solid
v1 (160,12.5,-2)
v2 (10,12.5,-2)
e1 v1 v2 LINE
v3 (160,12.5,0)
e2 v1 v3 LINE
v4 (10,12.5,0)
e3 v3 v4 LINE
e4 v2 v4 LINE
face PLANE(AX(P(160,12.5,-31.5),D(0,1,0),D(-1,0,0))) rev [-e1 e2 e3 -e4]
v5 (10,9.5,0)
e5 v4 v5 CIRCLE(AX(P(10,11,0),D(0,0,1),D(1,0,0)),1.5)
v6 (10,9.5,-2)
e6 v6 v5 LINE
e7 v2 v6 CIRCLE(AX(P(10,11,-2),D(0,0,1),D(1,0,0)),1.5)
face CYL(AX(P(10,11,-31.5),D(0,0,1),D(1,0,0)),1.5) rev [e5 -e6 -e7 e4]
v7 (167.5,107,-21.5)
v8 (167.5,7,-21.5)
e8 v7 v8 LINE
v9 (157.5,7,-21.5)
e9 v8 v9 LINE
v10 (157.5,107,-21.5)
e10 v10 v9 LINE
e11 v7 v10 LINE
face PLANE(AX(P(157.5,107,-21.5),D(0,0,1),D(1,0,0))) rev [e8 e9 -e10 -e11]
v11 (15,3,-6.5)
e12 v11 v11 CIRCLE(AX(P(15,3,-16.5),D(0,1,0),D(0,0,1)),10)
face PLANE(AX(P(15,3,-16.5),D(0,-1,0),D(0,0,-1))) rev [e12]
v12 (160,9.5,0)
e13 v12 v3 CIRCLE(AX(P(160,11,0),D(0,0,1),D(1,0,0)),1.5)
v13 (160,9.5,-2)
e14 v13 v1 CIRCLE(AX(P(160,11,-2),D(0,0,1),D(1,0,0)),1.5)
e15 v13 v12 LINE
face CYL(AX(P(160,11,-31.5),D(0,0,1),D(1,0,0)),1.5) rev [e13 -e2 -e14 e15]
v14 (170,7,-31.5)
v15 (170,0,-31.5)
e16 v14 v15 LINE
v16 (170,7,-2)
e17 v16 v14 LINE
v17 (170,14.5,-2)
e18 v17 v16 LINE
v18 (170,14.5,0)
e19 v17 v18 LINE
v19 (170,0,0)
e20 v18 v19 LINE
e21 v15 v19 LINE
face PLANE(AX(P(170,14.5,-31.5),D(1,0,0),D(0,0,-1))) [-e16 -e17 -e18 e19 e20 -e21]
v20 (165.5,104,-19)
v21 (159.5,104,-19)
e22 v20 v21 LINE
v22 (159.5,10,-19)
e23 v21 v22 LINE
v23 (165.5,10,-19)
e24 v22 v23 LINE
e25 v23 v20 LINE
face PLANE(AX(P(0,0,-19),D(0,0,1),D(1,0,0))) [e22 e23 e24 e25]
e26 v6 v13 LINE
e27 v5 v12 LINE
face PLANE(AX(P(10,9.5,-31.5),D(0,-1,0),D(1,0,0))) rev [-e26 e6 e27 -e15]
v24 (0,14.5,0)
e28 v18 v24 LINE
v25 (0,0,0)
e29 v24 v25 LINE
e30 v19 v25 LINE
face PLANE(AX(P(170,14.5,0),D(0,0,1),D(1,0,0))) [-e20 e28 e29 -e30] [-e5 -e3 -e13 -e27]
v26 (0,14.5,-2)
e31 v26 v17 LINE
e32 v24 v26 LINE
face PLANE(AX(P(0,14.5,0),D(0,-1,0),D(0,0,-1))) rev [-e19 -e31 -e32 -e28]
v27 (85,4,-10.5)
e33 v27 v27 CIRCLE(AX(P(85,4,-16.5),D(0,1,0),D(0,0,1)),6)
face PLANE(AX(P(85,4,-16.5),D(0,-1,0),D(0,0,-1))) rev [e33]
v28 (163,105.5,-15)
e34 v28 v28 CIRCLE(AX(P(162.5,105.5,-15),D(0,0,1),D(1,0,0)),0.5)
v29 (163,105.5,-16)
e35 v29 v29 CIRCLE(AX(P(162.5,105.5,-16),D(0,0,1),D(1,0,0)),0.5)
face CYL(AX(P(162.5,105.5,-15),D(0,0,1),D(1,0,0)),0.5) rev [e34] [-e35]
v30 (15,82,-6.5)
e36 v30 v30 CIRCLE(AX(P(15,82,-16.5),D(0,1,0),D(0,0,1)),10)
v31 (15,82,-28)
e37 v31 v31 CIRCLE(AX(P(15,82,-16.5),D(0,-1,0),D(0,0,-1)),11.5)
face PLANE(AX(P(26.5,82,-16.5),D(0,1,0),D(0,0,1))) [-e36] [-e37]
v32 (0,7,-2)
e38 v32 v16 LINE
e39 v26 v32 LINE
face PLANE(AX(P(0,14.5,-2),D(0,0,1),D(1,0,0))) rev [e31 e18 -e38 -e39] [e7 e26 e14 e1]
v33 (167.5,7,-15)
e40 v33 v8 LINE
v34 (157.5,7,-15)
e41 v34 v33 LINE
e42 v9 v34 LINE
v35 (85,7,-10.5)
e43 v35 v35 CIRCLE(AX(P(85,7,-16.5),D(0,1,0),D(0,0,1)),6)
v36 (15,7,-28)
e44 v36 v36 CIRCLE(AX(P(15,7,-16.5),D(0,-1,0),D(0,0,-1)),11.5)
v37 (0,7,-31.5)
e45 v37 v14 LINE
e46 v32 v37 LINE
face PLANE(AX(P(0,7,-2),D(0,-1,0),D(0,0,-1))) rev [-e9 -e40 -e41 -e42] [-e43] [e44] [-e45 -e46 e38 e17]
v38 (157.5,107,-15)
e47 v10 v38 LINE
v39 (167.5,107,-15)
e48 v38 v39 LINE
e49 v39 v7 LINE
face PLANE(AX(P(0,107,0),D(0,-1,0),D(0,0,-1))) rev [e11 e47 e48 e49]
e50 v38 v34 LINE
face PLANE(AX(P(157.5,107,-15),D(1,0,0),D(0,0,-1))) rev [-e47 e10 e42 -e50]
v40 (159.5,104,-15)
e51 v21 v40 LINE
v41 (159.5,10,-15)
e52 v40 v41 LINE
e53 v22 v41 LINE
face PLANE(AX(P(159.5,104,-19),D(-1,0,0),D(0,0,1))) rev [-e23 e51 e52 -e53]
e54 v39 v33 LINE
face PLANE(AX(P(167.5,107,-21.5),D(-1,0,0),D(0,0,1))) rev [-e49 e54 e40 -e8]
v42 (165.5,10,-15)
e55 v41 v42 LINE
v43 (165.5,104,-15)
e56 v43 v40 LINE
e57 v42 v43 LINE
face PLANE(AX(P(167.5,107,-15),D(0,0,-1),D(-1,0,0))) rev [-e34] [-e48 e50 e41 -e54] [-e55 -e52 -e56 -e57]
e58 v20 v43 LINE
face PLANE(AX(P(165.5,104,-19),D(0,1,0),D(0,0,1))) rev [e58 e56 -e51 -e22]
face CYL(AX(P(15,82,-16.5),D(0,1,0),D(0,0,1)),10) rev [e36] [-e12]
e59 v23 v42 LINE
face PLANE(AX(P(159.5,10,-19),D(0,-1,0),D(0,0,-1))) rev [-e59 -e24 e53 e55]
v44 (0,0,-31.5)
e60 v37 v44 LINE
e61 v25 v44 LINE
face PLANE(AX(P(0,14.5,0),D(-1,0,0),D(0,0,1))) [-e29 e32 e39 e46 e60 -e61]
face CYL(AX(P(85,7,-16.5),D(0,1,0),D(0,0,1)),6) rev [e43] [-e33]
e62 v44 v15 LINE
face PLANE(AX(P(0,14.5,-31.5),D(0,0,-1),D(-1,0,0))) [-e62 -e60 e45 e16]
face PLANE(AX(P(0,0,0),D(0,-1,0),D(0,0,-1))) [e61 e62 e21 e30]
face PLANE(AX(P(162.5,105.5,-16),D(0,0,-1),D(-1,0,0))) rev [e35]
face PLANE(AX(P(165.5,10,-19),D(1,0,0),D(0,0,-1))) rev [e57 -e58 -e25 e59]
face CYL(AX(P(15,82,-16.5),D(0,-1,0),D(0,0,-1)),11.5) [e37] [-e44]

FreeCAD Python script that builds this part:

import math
import FreeCAD as App
import Part
import Sketcher

doc = App.newDocument("Part")
body = doc.addObject("PartDesign::Body", "Body")

# Sketch on XZ plane
sketch1 = doc.addObject("Sketcher::SketchObject", "Sketch")
body.addObject(sketch1)
sketch1.AttachmentSupport = (doc.XZ_Plane, [""])
sketch1.MapMode = "FlatFace"
sketch1.addGeometry(Part.LineSegment(App.Vector(0, 0, 0), App.Vector(0, -32, 0)), False)
sketch1.addGeometry(Part.LineSegment(App.Vector(0, -32, 0), App.Vector(170, -32, 0)), False)
sketch1.addGeometry(Part.LineSegment(App.Vector(170, -32, 0), App.Vector(170, 0, 0)), False)
sketch1.addGeometry(Part.LineSegment(App.Vector(170, 0, 0), App.Vector(0, 0, 0)), False)
sketch1.addConstraint(Sketcher.Constraint("Coincident", 0, 2, 1, 1))
sketch1.addConstraint(Sketcher.Constraint("Coincident", 1, 2, 2, 1))
sketch1.addConstraint(Sketcher.Constraint("Coincident", 2, 2, 3, 1))
sketch1.addConstraint(Sketcher.Constraint("Coincident", 3, 2, 0, 1))
sketch1.addConstraint(Sketcher.Constraint("Vertical", 0))
sketch1.addConstraint(Sketcher.Constraint("Horizontal", 1))
sketch1.addConstraint(Sketcher.Constraint("Vertical", 2))
sketch1.addConstraint(Sketcher.Constraint("Horizontal", 3))
sketch1.addConstraint(Sketcher.Constraint("Coincident", 3, 2, -1, 1))
sketch1.addConstraint(Sketcher.Constraint("DistanceX", 1, 1, 1, 2, 170.0))
sketch1.addConstraint(Sketcher.Constraint("DistanceY", 0, 2, 0, 1, 31.5))
pad1 = doc.addObject("PartDesign::Pad", "Pad")
body.addObject(pad1)
pad1.Profile = sketch1
pad1.Length = 14.5
pad1.Reversed = True

# Sketch on YZ plane
sketch2 = doc.addObject("Sketcher::SketchObject", "Sketch001")
body.addObject(sketch2)
sketch2.AttachmentSupport = (doc.YZ_Plane, [""])
sketch2.MapMode = "FlatFace"
sketch2.AttachmentOffset = App.Placement(App.Vector(0, 0, 170), App.Rotation())
sketch2.addGeometry(Part.LineSegment(App.Vector(14, -2, 0), App.Vector(7, -2, 0)), False)
sketch2.addGeometry(Part.LineSegment(App.Vector(7, -2, 0), App.Vector(7, -32, 0)), False)
sketch2.addGeometry(Part.LineSegment(App.Vector(7, -32, 0), App.Vector(14, -32, 0)), False)
sketch2.addGeometry(Part.LineSegment(App.Vector(14, -32, 0), App.Vector(14, -2, 0)), False)
sketch2.addConstraint(Sketcher.Constraint("Coincident", 0, 2, 1, 1))
sketch2.addConstraint(Sketcher.Constraint("Coincident", 1, 2, 2, 1))
sketch2.addConstraint(Sketcher.Constraint("Coincident", 2, 2, 3, 1))
sketch2.addConstraint(Sketcher.Constraint("Coincident", 3, 2, 0, 1))
sketch2.addConstraint(Sketcher.Constraint("Horizontal", 0))
sketch2.addConstraint(Sketcher.Constraint("Vertical", 1))
sketch2.addConstraint(Sketcher.Constraint("Horizontal", 2))
sketch2.addConstraint(Sketcher.Constraint("Vertical", 3))
sketch2.addConstraint(Sketcher.Constraint("DistanceX", 0, 2, 0, 1, 7.5))
sketch2.addConstraint(Sketcher.Constraint("DistanceY", 1, 2, 1, 1, 29.5))
sketch2.addConstraint(Sketcher.Constraint("DistanceX", -1, 1, 0, 2, 7.0))
sketch2.addConstraint(Sketcher.Constraint("DistanceY", 0, 2, -1, 1, 2.0))
pocket1 = doc.addObject("PartDesign::Pocket", "Pocket")
body.addObject(pocket1)
pocket1.Profile = sketch2
pocket1.Type = "ThroughAll"

# Sketch on XY plane
sketch3 = doc.addObject("Sketcher::SketchObject", "Sketch002")
body.addObject(sketch3)
sketch3.AttachmentSupport = (doc.XY_Plane, [""])
sketch3.MapMode = "FlatFace"
sketch3.addGeometry(Part.LineSegment(App.Vector(160, 12.5, 0), App.Vector(10, 12.5, 0)), False)
sketch3.addGeometry(Part.ArcOfCircle(Part.Circle(App.Vector(10, 11, 0), App.Vector(0, 0, 1), 1.5), math.radians(90), math.radians(270)), False)
sketch3.addGeometry(Part.LineSegment(App.Vector(10, 9.5, 0), App.Vector(160, 9.5, 0)), False)
sketch3.addGeometry(Part.ArcOfCircle(Part.Circle(App.Vector(160, 11, 0), App.Vector(0, 0, 1), 1.5), math.radians(-90), math.radians(90)), False)
sketch3.addConstraint(Sketcher.Constraint("Tangent", 0, 2, 1, 1))
sketch3.addConstraint(Sketcher.Constraint("Tangent", 1, 2, 2, 1))
sketch3.addConstraint(Sketcher.Constraint("Tangent", 2, 2, 3, 1))
sketch3.addConstraint(Sketcher.Constraint("Tangent", 3, 2, 0, 1))
sketch3.addConstraint(Sketcher.Constraint("Horizontal", 0))
sketch3.addConstraint(Sketcher.Constraint("Horizontal", 2))
sketch3.addConstraint(Sketcher.Constraint("Radius", 1, 1.5))
sketch3.addConstraint(Sketcher.Constraint("DistanceX", 0, 2, 0, 1, 150.0))
sketch3.addConstraint(Sketcher.Constraint("DistanceX", -1, 1, 1, 3, 10.0))
sketch3.addConstraint(Sketcher.Constraint("DistanceY", -1, 1, 1, 3, 11.0))
pocket2 = doc.addObject("PartDesign::Pocket", "Pocket001")
body.addObject(pocket2)
pocket2.Profile = sketch3
pocket2.Type = "ThroughAll"

# Sketch on XZ plane
sketch4 = doc.addObject("Sketcher::SketchObject", "Sketch003")
body.addObject(sketch4)
sketch4.AttachmentSupport = (doc.XZ_Plane, [""])
sketch4.MapMode = "FlatFace"
sketch4.AttachmentOffset = App.Placement(App.Vector(0, 0, -7), App.Rotation())
sketch4.addGeometry(Part.LineSegment(App.Vector(168, -15, 0), App.Vector(168, -21, 0)), False)
sketch4.addGeometry(Part.LineSegment(App.Vector(168, -21, 0), App.Vector(157, -21, 0)), False)
sketch4.addGeometry(Part.LineSegment(App.Vector(157, -21, 0), App.Vector(157, -15, 0)), False)
sketch4.addGeometry(Part.LineSegment(App.Vector(157, -15, 0), App.Vector(168, -15, 0)), False)
sketch4.addConstraint(Sketcher.Constraint("Coincident", 0, 2, 1, 1))
sketch4.addConstraint(Sketcher.Constraint("Coincident", 1, 2, 2, 1))
sketch4.addConstraint(Sketcher.Constraint("Coincident", 2, 2, 3, 1))
sketch4.addConstraint(Sketcher.Constraint("Coincident", 3, 2, 0, 1))
sketch4.addConstraint(Sketcher.Constraint("Vertical", 0))
sketch4.addConstraint(Sketcher.Constraint("Horizontal", 1))
sketch4.addConstraint(Sketcher.Constraint("Vertical", 2))
sketch4.addConstraint(Sketcher.Constraint("Horizontal", 3))
sketch4.addConstraint(Sketcher.Constraint("DistanceX", 1, 2, 1, 1, 10.0))
sketch4.addConstraint(Sketcher.Constraint("DistanceY", 0, 2, 0, 1, 6.5))
sketch4.addConstraint(Sketcher.Constraint("DistanceY", 2, 2, -1, 1, 15.0))
sketch4.addConstraint(Sketcher.Constraint("DistanceX", -1, 1, 0, 2, 167.5))
pad2 = doc.addObject("PartDesign::Pad", "Pad001")
body.addObject(pad2)
pad2.Profile = sketch4
pad2.Length = 100
pad2.Reversed = True

# Sketch on XY plane
sketch5 = doc.addObject("Sketcher::SketchObject", "Sketch004")
body.addObject(sketch5)
sketch5.AttachmentSupport = (doc.XY_Plane, [""])
sketch5.MapMode = "FlatFace"
sketch5.AttachmentOffset = App.Placement(App.Vector(0, 0, -15), App.Rotation())
sketch5.addGeometry(Part.LineSegment(App.Vector(160, 104, 0), App.Vector(160, 10, 0)), False)
sketch5.addGeometry(Part.LineSegment(App.Vector(160, 10, 0), App.Vector(166, 10, 0)), False)
sketch5.addGeometry(Part.LineSegment(App.Vector(166, 10, 0), App.Vector(166, 104, 0)), False)
sketch5.addGeometry(Part.LineSegment(App.Vector(166, 104, 0), App.Vector(160, 104, 0)), False)
sketch5.addConstraint(Sketcher.Constraint("Coincident", 0, 2, 1, 1))
sketch5.addConstraint(Sketcher.Constraint("Coincident", 1, 2, 2, 1))
sketch5.addConstraint(Sketcher.Constraint("Coincident", 2, 2, 3, 1))
sketch5.addConstraint(Sketcher.Constraint("Coincident", 3, 2, 0, 1))
sketch5.addConstraint(Sketcher.Constraint("Vertical", 0))
sketch5.addConstraint(Sketcher.Constraint("Horizontal", 1))
sketch5.addConstraint(Sketcher.Constraint("Vertical", 2))
sketch5.addConstraint(Sketcher.Constraint("Horizontal", 3))
sketch5.addConstraint(Sketcher.Constraint("DistanceX", 1, 1, 1, 2, 6.0))
sketch5.addConstraint(Sketcher.Constraint("DistanceY", 0, 2, 0, 1, 94.0))
sketch5.addConstraint(Sketcher.Constraint("DistanceY", -1, 1, 0, 2, 10.0))
sketch5.addConstraint(Sketcher.Constraint("DistanceX", -1, 1, 0, 2, 159.5))
pocket3 = doc.addObject("PartDesign::Pocket", "Pocket002")
body.addObject(pocket3)
pocket3.Profile = sketch5
pocket3.Length = 4

# Sketch on XY plane
sketch6 = doc.addObject("Sketcher::SketchObject", "Sketch005")
body.addObject(sketch6)
sketch6.AttachmentSupport = (doc.XY_Plane, [""])
sketch6.MapMode = "FlatFace"
sketch6.AttachmentOffset = App.Placement(App.Vector(0, 0, -16.5), App.Rotation())
sketch6.addGeometry(Part.LineSegment(App.Vector(15, 82, 0), App.Vector(15, 7, 0)), False)
sketch6.addGeometry(Part.LineSegment(App.Vector(15, 7, 0), App.Vector(26, 7, 0)), False)
sketch6.addGeometry(Part.LineSegment(App.Vector(26, 7, 0), App.Vector(26, 82, 0)), False)
sketch6.addGeometry(Part.LineSegment(App.Vector(26, 82, 0), App.Vector(15, 82, 0)), False)
sketch6.addGeometry(Part.LineSegment(App.Vector(15, 82, 0), App.Vector(15, 7, 0)), True)  # axis
sketch6.addConstraint(Sketcher.Constraint("Coincident", 0, 2, 1, 1))
sketch6.addConstraint(Sketcher.Constraint("Coincident", 1, 2, 2, 1))
sketch6.addConstraint(Sketcher.Constraint("Coincident", 2, 2, 3, 1))
sketch6.addConstraint(Sketcher.Constraint("Coincident", 3, 2, 0, 1))
sketch6.addConstraint(Sketcher.Constraint("Vertical", 0))
sketch6.addConstraint(Sketcher.Constraint("Horizontal", 1))
sketch6.addConstraint(Sketcher.Constraint("Vertical", 2))
sketch6.addConstraint(Sketcher.Constraint("Horizontal", 3))
sketch6.addConstraint(Sketcher.Constraint("Vertical", 4))
sketch6.addConstraint(Sketcher.Constraint("Coincident", 4, 1, 3, 2))
sketch6.addConstraint(Sketcher.Constraint("Horizontal", 1, 2, 4, 2))
sketch6.addConstraint(Sketcher.Constraint("DistanceY", 0, 2, 0, 1, 75.0))
sketch6.addConstraint(Sketcher.Constraint("DistanceX", 1, 1, 1, 2, 11.5))
sketch6.addConstraint(Sketcher.Constraint("DistanceX", -1, 1, 0, 2, 15.0))
sketch6.addConstraint(Sketcher.Constraint("DistanceY", -1, 1, 0, 2, 7.0))
revolution = doc.addObject("PartDesign::Revolution", "Revolution")
body.addObject(revolution)
revolution.Profile = sketch6
revolution.ReferenceAxis = (sketch6, ["Axis0"])
revolution.Angle = 360

# Sketch on XZ plane
sketch7 = doc.addObject("Sketcher::SketchObject", "Sketch006")
body.addObject(sketch7)
sketch7.AttachmentSupport = (doc.XZ_Plane, [""])
sketch7.MapMode = "FlatFace"
sketch7.AttachmentOffset = App.Placement(App.Vector(0, 0, -7), App.Rotation())
sketch7.addGeometry(Part.Circle(App.Vector(85, -16, 0), App.Vector(0, 0, 1), 6), False)
sketch7.addConstraint(Sketcher.Constraint("Diameter", 0, 12.0))
sketch7.addConstraint(Sketcher.Constraint("DistanceX", -1, 1, 0, 3, 85.0))
sketch7.addConstraint(Sketcher.Constraint("DistanceY", 0, 3, -1, 1, 16.5))
doc.recompute()
hole = doc.addObject("PartDesign::Hole", "Hole")
body.addObject(hole)
hole.Profile = sketch7
hole.ThreadType = "None"
hole.Diameter = 12
hole.DepthType = "Dimension"
hole.Depth = 3
hole.DrillPoint = "Flat"
hole.Reversed = True

# Sketch on XY plane
sketch8 = doc.addObject("Sketcher::SketchObject", "Sketch007")
body.addObject(sketch8)
sketch8.AttachmentSupport = (doc.XY_Plane, [""])
sketch8.MapMode = "FlatFace"
sketch8.AttachmentOffset = App.Placement(App.Vector(0, 0, -15), App.Rotation())
sketch8.addGeometry(Part.Circle(App.Vector(162.5, 105.5, 0), App.Vector(0, 0, 1), 0.5), False)
sketch8.addConstraint(Sketcher.Constraint("Diameter", 0, 1.0))
sketch8.addConstraint(Sketcher.Constraint("DistanceX", -1, 1, 0, 3, 162.5))
sketch8.addConstraint(Sketcher.Constraint("DistanceY", -1, 1, 0, 3, 105.5))
doc.recompute()
hole2 = doc.addObject("PartDesign::Hole", "Hole001")
body.addObject(hole2)
hole2.Profile = sketch8
hole2.ThreadType = "None"
hole2.Diameter = 1
hole2.DepthType = "Dimension"
hole2.Depth = 1
hole2.DrillPoint = "Flat"

# Sketch on XZ plane
sketch9 = doc.addObject("Sketcher::SketchObject", "Sketch008")
body.addObject(sketch9)
sketch9.AttachmentSupport = (doc.XZ_Plane, [""])
sketch9.MapMode = "FlatFace"
sketch9.AttachmentOffset = App.Placement(App.Vector(0, 0, -82), App.Rotation())
sketch9.addGeometry(Part.Circle(App.Vector(15, -16, 0), App.Vector(0, 0, 1), 10), False)
sketch9.addConstraint(Sketcher.Constraint("Diameter", 0, 20.0))
sketch9.addConstraint(Sketcher.Constraint("DistanceX", -1, 1, 0, 3, 15.0))
sketch9.addConstraint(Sketcher.Constraint("DistanceY", 0, 3, -1, 1, 16.5))
doc.recompute()
hole3 = doc.addObject("PartDesign::Hole", "Hole002")
body.addObject(hole3)
hole3.Profile = sketch9
hole3.ThreadType = "None"
hole3.Diameter = 20
hole3.DepthType = "Dimension"
hole3.Depth = 79
hole3.DrillPoint = "Flat"
hole3.Reversed = True

doc.recompute()
